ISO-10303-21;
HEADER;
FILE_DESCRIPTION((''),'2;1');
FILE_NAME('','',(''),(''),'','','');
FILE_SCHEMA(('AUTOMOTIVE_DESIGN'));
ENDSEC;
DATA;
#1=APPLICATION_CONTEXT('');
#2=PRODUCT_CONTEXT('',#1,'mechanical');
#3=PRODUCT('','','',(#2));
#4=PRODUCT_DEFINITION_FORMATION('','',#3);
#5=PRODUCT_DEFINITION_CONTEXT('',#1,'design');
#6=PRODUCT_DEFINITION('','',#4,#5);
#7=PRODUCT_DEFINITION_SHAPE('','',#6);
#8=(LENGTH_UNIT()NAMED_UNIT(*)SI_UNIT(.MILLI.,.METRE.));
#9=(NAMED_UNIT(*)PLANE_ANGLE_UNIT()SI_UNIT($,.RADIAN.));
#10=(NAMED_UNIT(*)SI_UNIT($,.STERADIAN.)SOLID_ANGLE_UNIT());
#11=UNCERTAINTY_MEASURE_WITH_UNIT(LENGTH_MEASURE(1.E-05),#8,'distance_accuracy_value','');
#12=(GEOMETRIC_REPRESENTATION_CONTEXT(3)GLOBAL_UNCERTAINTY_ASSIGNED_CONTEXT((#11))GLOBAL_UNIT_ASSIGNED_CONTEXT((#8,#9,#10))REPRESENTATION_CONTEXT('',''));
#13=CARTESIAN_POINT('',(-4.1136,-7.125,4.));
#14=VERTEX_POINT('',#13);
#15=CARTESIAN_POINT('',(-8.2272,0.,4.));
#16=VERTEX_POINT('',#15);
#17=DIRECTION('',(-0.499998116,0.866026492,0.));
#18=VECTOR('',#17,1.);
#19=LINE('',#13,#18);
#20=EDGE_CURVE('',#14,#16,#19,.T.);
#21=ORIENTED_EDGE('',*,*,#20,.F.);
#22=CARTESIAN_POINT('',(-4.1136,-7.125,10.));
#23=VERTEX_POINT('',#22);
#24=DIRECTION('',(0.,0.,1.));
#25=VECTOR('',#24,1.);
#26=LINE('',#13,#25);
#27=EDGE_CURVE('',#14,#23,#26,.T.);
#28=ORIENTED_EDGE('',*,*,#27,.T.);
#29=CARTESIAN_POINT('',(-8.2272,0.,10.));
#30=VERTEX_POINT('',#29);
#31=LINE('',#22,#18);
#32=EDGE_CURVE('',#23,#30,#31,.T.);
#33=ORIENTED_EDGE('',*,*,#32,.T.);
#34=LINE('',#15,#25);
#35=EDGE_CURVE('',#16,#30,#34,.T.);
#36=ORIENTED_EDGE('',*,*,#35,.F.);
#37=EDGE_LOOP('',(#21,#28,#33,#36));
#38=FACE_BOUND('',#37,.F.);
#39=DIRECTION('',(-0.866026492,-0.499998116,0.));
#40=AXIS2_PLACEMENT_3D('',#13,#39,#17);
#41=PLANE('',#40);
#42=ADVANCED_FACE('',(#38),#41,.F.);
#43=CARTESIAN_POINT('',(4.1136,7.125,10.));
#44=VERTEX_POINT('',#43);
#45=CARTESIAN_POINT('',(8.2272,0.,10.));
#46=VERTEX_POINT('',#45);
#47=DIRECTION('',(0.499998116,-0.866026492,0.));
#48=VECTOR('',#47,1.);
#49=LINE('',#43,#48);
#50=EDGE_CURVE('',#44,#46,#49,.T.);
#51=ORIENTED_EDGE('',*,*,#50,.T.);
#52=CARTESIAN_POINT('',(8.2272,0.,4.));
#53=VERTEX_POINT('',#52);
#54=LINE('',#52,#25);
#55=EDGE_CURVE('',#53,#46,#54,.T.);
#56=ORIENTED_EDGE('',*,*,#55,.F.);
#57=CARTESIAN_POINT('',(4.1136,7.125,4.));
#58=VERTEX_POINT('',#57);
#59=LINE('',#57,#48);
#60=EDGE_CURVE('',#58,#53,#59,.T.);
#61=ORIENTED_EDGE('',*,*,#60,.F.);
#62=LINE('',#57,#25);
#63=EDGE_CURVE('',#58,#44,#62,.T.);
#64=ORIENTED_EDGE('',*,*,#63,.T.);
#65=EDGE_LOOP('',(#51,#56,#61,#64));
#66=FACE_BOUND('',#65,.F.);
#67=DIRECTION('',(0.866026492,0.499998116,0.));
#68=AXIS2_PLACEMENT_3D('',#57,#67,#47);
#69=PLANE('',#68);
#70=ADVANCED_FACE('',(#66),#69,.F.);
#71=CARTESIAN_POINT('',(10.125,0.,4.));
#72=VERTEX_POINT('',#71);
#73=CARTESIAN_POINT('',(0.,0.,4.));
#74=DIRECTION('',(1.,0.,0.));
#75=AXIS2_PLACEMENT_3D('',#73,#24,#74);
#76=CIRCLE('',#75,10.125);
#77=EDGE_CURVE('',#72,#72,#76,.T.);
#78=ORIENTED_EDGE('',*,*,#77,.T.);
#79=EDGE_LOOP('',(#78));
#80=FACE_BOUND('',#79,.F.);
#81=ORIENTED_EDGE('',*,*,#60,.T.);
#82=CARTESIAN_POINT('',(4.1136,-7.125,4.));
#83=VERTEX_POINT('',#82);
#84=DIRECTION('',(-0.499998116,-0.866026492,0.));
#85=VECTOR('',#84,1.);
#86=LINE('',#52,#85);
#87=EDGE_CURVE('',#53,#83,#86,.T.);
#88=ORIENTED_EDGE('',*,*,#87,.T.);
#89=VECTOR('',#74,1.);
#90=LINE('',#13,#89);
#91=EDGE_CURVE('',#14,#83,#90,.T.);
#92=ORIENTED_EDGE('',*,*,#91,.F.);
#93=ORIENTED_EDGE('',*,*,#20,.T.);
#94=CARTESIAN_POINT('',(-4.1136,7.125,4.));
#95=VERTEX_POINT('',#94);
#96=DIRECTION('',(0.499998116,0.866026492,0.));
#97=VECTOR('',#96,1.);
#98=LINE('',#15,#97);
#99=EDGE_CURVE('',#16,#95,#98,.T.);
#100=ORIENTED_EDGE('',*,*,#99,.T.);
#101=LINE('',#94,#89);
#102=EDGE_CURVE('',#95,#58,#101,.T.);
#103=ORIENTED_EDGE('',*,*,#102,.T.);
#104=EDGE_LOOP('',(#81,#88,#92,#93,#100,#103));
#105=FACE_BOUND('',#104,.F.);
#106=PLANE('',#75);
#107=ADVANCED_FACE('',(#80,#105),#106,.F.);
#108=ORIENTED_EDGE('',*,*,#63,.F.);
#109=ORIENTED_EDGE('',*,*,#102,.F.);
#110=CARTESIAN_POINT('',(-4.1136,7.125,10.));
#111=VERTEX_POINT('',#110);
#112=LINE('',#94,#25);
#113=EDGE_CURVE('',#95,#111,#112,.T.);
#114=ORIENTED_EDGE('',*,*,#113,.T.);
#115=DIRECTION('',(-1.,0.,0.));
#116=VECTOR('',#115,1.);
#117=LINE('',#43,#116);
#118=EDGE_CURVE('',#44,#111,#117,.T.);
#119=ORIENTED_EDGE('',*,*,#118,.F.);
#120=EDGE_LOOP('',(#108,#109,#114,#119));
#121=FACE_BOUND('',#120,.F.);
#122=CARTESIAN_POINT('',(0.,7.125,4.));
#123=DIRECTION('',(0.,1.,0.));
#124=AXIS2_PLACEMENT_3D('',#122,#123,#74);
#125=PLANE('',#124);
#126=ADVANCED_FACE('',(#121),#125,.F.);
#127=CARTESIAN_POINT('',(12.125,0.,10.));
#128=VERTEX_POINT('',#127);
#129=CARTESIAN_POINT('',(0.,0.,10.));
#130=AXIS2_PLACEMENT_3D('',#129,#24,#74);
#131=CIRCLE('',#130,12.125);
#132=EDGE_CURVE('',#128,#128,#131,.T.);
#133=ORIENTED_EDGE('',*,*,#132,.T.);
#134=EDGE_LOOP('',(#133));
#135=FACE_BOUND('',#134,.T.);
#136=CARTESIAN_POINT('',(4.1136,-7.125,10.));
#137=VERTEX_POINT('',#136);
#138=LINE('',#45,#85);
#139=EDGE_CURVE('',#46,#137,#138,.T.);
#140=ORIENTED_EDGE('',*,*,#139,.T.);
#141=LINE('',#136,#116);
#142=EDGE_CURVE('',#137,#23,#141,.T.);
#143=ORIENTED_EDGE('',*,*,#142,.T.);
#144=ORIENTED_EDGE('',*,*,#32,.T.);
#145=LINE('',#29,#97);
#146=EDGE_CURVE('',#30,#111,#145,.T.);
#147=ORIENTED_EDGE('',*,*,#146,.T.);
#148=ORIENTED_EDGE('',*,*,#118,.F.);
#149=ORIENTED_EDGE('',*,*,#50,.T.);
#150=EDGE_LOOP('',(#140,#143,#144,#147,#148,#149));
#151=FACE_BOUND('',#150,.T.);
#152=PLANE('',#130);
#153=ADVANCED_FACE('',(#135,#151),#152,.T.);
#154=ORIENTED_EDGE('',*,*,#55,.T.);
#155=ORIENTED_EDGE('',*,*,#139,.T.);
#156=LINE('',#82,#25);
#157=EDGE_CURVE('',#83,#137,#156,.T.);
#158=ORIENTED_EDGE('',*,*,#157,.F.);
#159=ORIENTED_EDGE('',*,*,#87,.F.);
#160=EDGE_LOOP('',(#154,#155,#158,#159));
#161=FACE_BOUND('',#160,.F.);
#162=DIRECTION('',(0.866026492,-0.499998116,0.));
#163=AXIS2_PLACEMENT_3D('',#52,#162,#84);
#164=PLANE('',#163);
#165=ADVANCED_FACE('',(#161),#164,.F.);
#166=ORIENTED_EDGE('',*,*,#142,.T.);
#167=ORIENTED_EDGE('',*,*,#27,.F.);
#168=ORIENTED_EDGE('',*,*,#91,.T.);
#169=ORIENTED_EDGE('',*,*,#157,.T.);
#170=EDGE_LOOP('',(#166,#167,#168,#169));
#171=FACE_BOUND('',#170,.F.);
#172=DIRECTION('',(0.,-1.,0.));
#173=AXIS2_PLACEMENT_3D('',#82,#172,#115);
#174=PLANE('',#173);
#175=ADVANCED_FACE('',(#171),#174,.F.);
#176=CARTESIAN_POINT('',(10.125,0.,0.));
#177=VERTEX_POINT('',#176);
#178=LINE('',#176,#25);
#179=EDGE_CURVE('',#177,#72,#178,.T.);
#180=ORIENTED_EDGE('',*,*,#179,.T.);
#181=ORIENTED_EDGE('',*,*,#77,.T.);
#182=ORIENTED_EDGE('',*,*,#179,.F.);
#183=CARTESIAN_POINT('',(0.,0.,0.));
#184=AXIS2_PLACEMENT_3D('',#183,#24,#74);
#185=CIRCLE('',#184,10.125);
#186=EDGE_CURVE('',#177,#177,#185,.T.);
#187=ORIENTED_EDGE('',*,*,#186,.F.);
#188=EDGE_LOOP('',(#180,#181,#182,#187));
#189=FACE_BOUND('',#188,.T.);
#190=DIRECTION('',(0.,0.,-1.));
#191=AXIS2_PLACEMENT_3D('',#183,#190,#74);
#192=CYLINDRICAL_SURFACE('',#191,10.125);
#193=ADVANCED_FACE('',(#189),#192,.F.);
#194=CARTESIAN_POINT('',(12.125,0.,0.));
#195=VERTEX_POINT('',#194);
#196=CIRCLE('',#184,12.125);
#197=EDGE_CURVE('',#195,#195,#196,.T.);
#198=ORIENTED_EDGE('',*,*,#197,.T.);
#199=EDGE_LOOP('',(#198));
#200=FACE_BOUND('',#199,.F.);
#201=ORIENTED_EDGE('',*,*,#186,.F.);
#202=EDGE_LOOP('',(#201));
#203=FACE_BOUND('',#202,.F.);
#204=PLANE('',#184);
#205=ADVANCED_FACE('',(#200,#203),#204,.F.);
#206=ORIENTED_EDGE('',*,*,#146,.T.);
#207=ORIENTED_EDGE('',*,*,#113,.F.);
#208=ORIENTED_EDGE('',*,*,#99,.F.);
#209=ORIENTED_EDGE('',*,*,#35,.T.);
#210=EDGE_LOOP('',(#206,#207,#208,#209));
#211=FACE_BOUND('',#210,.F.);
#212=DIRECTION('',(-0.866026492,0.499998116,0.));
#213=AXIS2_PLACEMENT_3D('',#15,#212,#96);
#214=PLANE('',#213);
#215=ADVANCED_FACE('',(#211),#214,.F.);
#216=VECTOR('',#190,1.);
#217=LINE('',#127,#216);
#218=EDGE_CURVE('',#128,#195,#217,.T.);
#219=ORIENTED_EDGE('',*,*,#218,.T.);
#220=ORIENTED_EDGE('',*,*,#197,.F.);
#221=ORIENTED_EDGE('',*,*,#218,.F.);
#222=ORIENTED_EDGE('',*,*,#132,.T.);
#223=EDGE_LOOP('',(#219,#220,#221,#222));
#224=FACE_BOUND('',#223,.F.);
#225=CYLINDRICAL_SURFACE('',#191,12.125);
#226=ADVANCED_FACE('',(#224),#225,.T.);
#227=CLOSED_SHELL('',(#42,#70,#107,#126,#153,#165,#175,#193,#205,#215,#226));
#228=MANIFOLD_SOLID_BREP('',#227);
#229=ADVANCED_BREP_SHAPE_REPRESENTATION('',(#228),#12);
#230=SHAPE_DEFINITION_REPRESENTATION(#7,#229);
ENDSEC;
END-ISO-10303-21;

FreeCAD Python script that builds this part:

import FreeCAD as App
import Part
import Sketcher

V = App.Vector
Q = App.Units.Quantity


def add_polygon(sketch, points):
    """Adds a closed chain of lines whose ends are joined by coincident constraints."""
    first, n = sketch.GeometryCount, len(points)
    for a, b in zip(points, points[1:] + points[:1]):
        sketch.addGeometry(Part.LineSegment(App.Vector(*a, 0), App.Vector(*b, 0)), False)
    for i in range(n):
        sketch.addConstraint(Sketcher.Constraint("Coincident", first + i, 2, first + (i + 1) % n, 1))

doc = App.newDocument("Part")
params = doc.addObject("Spreadsheet::Sheet", "Params")
for row, (alias, value) in enumerate([
    ("sketch1_diameter", "20.25 mm"),
    ("sketch1_diameter2", "24.25 mm"),
    ("pad1_length", "4 mm"),
    ("sketch2_diameter", "24.25 mm"),
    ("pad2_length", "6 mm"),
], start=1):
    params.set(f"A{row}", alias)
    params.set(f"B{row}", "=" + value)
    params.setAlias(f"B{row}", alias)

body = doc.addObject("PartDesign::Body", "Body")

# Sketch on XY plane
sketch1 = body.newObject("Sketcher::SketchObject", "Sketch")
sketch1.AttachmentSupport = (doc.getObject("XY_Plane"), [""])
sketch1.MapMode = "FlatFace"
sketch1.addGeometry([
    Part.Circle(V(0, 0, 0), V(0, 0, 1), 12.125),
    Part.Circle(V(0, 0, 0), V(0, 0, 1), 10.125),
], False)
sketch1.addConstraint([
    Sketcher.Constraint("Coincident", 0, 3, -1, 1),
    Sketcher.Constraint("Coincident", 1, 3, -1, 1),
    Sketcher.Constraint("Diameter", 1, 20.25),
    Sketcher.Constraint("Diameter", 0, 24.25),
])
sketch1.setExpression("Constraints[2]", "Params.sketch1_diameter")
sketch1.setExpression("Constraints[3]", "Params.sketch1_diameter2")
pad1 = body.newObject("PartDesign::Pad", "Pad")
pad1.Profile = sketch1
pad1.setExpression("Length", "Params.pad1_length")

# Sketch on XY plane
sketch2 = body.newObject("Sketcher::SketchObject", "Sketch001")
sketch2.AttachmentSupport = (doc.getObject("XY_Plane"), [""])
sketch2.MapMode = "FlatFace"
sketch2.AttachmentOffset = App.Placement(V(0, 0, 4), App.Rotation())
sketch2.addGeometry(Part.Circle(V(0, 0, 0), V(0, 0, 1), 12.125), False)  # 0
add_polygon(sketch2, [(4.1136, 7.125), (8.2272, 0), (4.1136, -7.125), (-4.1136, -7.125), (-8.2272, 0), (-4.1136, 7.125)])  # lines 1-6
sketch2.addConstraint([
    Sketcher.Constraint("Horizontal", 3),
    Sketcher.Constraint("Horizontal", 6),
    Sketcher.Constraint("Coincident", 0, 3, -1, 1),
    Sketcher.Constraint("Symmetric", 1, 2, 4, 2, -1, 1),
    Sketcher.Constraint("Symmetric", 2, 2, 5, 2, -1, 1),
    Sketcher.Constraint("PointOnObject", 1, 2, -1),
    Sketcher.Constraint("Parallel", 1, 4),
    Sketcher.Constraint("Vertical", 3, 2, 5, 2),
    Sketcher.Constraint("Diameter", 0, 24.25),
    Sketcher.Constraint("Angle", 1, Q("-60.0001 deg")),
    Sketcher.Constraint("DistanceY", 3, 2, 5, 2, 14.25),
    Sketcher.Constraint("DistanceX", 3, 2, 3, 1, 8.2272),
])
sketch2.setExpression("Constraints[14]", "Params.sketch2_diameter")
pad2 = body.newObject("PartDesign::Pad", "Pad001")
pad2.Profile = sketch2
pad2.setExpression("Length", "Params.pad2_length")

doc.recompute()
